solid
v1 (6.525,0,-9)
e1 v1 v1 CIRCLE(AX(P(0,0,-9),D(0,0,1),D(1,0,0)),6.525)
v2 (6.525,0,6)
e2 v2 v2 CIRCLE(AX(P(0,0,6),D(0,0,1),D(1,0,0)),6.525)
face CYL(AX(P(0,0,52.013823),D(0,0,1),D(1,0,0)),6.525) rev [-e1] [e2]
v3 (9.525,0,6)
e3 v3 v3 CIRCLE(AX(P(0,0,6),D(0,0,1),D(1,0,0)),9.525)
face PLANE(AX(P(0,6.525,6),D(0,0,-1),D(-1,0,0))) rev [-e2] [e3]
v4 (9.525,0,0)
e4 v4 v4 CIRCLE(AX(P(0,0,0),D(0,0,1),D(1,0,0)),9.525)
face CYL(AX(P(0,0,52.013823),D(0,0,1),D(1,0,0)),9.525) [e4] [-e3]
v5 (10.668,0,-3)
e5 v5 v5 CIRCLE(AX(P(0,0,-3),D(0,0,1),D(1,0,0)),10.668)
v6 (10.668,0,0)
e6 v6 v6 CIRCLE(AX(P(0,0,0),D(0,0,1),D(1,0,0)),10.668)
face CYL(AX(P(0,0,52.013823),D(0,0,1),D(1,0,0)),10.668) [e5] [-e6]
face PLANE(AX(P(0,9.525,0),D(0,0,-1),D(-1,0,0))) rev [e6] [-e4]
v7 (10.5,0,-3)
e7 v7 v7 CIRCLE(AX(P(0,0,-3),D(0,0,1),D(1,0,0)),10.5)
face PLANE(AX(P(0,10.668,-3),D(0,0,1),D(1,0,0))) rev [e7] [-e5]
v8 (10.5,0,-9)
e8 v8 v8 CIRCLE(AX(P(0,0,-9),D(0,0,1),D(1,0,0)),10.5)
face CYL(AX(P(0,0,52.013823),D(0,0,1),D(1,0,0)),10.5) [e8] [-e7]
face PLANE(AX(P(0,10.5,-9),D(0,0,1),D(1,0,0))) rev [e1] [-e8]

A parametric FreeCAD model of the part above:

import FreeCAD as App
import Part
import Sketcher

V = App.Vector
Q = App.Units.Quantity


def add_polygon(sketch, points):
    """Adds a closed chain of lines whose ends are joined by coincident constraints."""
    first, n = sketch.GeometryCount, len(points)
    for a, b in zip(points, points[1:] + points[:1]):
        sketch.addGeometry(Part.LineSegment(App.Vector(*a, 0), App.Vector(*b, 0)), False)
    for i in range(n):
        sketch.addConstraint(Sketcher.Constraint("Coincident", first + i, 2, first + (i + 1) % n, 1))

doc = App.newDocument("Part")
body = doc.addObject("PartDesign::Body", "Body")

# Sketch on YZ plane
sketch1 = doc.addObject("Sketcher::SketchObject", "Sketch")
body.addObject(sketch1)
sketch1.AttachmentSupport = (doc.YZ_Plane, [""])
sketch1.MapMode = "FlatFace"
add_polygon(sketch1, [(9.53, 6), (6.53, 6), (6.53, -9), (10.5, -9), (10.5, -3), (10.67, -3), (10.67, 0), (9.53, 0)])  # lines 0-7
sketch1.addConstraint(Sketcher.Constraint("Horizontal", 0))
sketch1.addConstraint(Sketcher.Constraint("Vertical", 1))
sketch1.addConstraint(Sketcher.Constraint("Horizontal", 2))
sketch1.addConstraint(Sketcher.Constraint("Vertical", 3))
sketch1.addConstraint(Sketcher.Constraint("Horizontal", 4))
sketch1.addConstraint(Sketcher.Constraint("Vertical", 5))
sketch1.addConstraint(Sketcher.Constraint("Horizontal", 6))
sketch1.addConstraint(Sketcher.Constraint("Vertical", 7))
sketch1.addConstraint(Sketcher.Constraint("PointOnObject", 5, 2, -1))
sketch1.addConstraint(Sketcher.Constraint("Equal", 0, 5))
sketch1.addConstraint(Sketcher.Constraint("Equal", 3, 7))
sketch1.addConstraint(Sketcher.Constraint("DistanceX", 0, 2, 0, 1, Q("3 mm")))
sketch1.addConstraint(Sketcher.Constraint("DistanceY", 1, 2, 1, 1, Q("15 mm")))
sketch1.addConstraint(Sketcher.Constraint("DistanceX", -1, 1, 2, 2, Q("10.5 mm")))
sketch1.addConstraint(Sketcher.Constraint("DistanceX", 2, 1, 2, 2, Q("3.975 mm")))
sketch1.addConstraint(Sketcher.Constraint("DistanceX", 4, 1, 4, 2, Q("0.168 mm")))
revolution = doc.addObject("PartDesign::Revolution", "Revolution")
body.addObject(revolution)
revolution.Profile = sketch1
revolution.ReferenceAxis = (sketch1, ["V_Axis"])
revolution.Angle = 360

doc.recompute()
